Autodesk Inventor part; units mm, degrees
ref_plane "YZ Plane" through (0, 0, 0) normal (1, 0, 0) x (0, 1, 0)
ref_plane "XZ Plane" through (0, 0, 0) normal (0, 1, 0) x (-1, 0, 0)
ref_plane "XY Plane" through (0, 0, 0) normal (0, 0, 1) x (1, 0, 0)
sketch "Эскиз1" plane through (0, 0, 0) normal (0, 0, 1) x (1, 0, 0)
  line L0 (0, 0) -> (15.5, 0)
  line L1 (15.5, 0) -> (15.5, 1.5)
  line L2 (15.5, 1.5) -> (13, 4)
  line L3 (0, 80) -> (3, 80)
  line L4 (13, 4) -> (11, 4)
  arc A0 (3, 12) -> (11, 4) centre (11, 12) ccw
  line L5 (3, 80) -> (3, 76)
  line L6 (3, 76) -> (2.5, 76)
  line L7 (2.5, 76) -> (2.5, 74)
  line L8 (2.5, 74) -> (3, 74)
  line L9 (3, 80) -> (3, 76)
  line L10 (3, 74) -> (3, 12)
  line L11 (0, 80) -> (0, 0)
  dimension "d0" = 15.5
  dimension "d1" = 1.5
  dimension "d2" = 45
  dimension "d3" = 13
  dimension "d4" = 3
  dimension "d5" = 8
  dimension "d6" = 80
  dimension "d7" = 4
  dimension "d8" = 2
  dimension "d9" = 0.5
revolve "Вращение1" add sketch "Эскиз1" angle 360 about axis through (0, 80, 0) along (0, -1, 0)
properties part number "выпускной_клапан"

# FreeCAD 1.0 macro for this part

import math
import FreeCAD as App
import Part
import Sketcher

doc = App.newDocument("Part")
body = doc.addObject("PartDesign::Body", "Body")

# Sketch on XY plane
sketch1 = body.newObject("Sketcher::SketchObject", "Sketch")
sketch1.AttachmentSupport = (doc.getObject("XY_Plane"), [""])
sketch1.MapMode = "FlatFace"
sketch1.addGeometry(Part.LineSegment(App.Vector(0, 80, 0), App.Vector(0, 0, 0)), False)
sketch1.addGeometry(Part.LineSegment(App.Vector(0, 0, 0), App.Vector(15.5, 0, 0)), False)
sketch1.addGeometry(Part.LineSegment(App.Vector(15.5, 0, 0), App.Vector(15.5, 1.5, 0)), False)
sketch1.addGeometry(Part.LineSegment(App.Vector(15.5, 1.5, 0), App.Vector(13, 4, 0)), False)
sketch1.addGeometry(Part.LineSegment(App.Vector(13, 4, 0), App.Vector(11, 4, 0)), False)
sketch1.addGeometry(Part.ArcOfCircle(Part.Circle(App.Vector(11, 12, 0), App.Vector(0, 0, 1), 8), math.radians(180), math.radians(270)), False)
sketch1.addGeometry(Part.LineSegment(App.Vector(3, 12, 0), App.Vector(3, 74, 0)), False)
sketch1.addGeometry(Part.LineSegment(App.Vector(3, 74, 0), App.Vector(2.5, 74, 0)), False)
sketch1.addGeometry(Part.LineSegment(App.Vector(2.5, 74, 0), App.Vector(2.5, 76, 0)), False)
sketch1.addGeometry(Part.LineSegment(App.Vector(2.5, 76, 0), App.Vector(3, 76, 0)), False)
sketch1.addGeometry(Part.LineSegment(App.Vector(3, 76, 0), App.Vector(3, 80, 0)), False)
sketch1.addGeometry(Part.LineSegment(App.Vector(3, 80, 0), App.Vector(0, 80, 0)), False)
sketch1.addConstraint(Sketcher.Constraint("Coincident", 0, 2, 1, 1))
sketch1.addConstraint(Sketcher.Constraint("Coincident", 1, 2, 2, 1))
sketch1.addConstraint(Sketcher.Constraint("Coincident", 2, 2, 3, 1))
sketch1.addConstraint(Sketcher.Constraint("Coincident", 3, 2, 4, 1))
sketch1.addConstraint(Sketcher.Constraint("Tangent", 4, 2, 5, 2))
sketch1.addConstraint(Sketcher.Constraint("Tangent", 5, 1, 6, 1))
sketch1.addConstraint(Sketcher.Constraint("Coincident", 6, 2, 7, 1))
sketch1.addConstraint(Sketcher.Constraint("Coincident", 7, 2, 8, 1))
sketch1.addConstraint(Sketcher.Constraint("Coincident", 8, 2, 9, 1))
sketch1.addConstraint(Sketcher.Constraint("Coincident", 9, 2, 10, 1))
sketch1.addConstraint(Sketcher.Constraint("Coincident", 10, 2, 11, 1))
sketch1.addConstraint(Sketcher.Constraint("Coincident", 11, 2, 0, 1))
sketch1.addConstraint(Sketcher.Constraint("Vertical", 0))
sketch1.addConstraint(Sketcher.Constraint("Horizontal", 1))
sketch1.addConstraint(Sketcher.Constraint("Vertical", 2))
sketch1.addConstraint(Sketcher.Constraint("Horizontal", 4))
sketch1.addConstraint(Sketcher.Constraint("Vertical", 6))
sketch1.addConstraint(Sketcher.Constraint("Horizontal", 7))
sketch1.addConstraint(Sketcher.Constraint("Vertical", 8))
sketch1.addConstraint(Sketcher.Constraint("Horizontal", 9))
sketch1.addConstraint(Sketcher.Constraint("Vertical", 10))
sketch1.addConstraint(Sketcher.Constraint("Horizontal", 11))
sketch1.addConstraint(Sketcher.Constraint("Coincident", 0, 2, -1, 1))
sketch1.addConstraint(Sketcher.Constraint("Vertical", 6, 2, 9, 2))
sketch1.addConstraint(Sketcher.Constraint("Equal", 4, 8))
sketch1.addConstraint(Sketcher.Constraint("Radius", 5, 8.0))
sketch1.addConstraint(Sketcher.Constraint("DistanceX", 4, 2, 4, 1, 2.0))
sketch1.addConstraint(Sketcher.Constraint("DistanceX", 11, 2, 11, 1, 3.0))
sketch1.addConstraint(Sketcher.Constraint("DistanceY", 0, 2, 0, 1, 80.0))
sketch1.addConstraint(Sketcher.Constraint("DistanceY", 10, 1, 10, 2, 4.0))
sketch1.addConstraint(Sketcher.Constraint("DistanceX", 1, 1, 1, 2, 15.5))
sketch1.addConstraint(Sketcher.Constraint("DistanceX", 7, 2, 7, 1, 0.5))
sketch1.addConstraint(Sketcher.Constraint("DistanceY", 2, 1, 2, 2, 1.5))
sketch1.addConstraint(Sketcher.Constraint("DistanceY", -1, 1, 3, 2, 4.0))
revolution = body.newObject("PartDesign::Revolution", "Revolution")
revolution.Profile = sketch1
revolution.ReferenceAxis = (sketch1, ["V_Axis"])
revolution.Angle = 360

doc.recompute()
